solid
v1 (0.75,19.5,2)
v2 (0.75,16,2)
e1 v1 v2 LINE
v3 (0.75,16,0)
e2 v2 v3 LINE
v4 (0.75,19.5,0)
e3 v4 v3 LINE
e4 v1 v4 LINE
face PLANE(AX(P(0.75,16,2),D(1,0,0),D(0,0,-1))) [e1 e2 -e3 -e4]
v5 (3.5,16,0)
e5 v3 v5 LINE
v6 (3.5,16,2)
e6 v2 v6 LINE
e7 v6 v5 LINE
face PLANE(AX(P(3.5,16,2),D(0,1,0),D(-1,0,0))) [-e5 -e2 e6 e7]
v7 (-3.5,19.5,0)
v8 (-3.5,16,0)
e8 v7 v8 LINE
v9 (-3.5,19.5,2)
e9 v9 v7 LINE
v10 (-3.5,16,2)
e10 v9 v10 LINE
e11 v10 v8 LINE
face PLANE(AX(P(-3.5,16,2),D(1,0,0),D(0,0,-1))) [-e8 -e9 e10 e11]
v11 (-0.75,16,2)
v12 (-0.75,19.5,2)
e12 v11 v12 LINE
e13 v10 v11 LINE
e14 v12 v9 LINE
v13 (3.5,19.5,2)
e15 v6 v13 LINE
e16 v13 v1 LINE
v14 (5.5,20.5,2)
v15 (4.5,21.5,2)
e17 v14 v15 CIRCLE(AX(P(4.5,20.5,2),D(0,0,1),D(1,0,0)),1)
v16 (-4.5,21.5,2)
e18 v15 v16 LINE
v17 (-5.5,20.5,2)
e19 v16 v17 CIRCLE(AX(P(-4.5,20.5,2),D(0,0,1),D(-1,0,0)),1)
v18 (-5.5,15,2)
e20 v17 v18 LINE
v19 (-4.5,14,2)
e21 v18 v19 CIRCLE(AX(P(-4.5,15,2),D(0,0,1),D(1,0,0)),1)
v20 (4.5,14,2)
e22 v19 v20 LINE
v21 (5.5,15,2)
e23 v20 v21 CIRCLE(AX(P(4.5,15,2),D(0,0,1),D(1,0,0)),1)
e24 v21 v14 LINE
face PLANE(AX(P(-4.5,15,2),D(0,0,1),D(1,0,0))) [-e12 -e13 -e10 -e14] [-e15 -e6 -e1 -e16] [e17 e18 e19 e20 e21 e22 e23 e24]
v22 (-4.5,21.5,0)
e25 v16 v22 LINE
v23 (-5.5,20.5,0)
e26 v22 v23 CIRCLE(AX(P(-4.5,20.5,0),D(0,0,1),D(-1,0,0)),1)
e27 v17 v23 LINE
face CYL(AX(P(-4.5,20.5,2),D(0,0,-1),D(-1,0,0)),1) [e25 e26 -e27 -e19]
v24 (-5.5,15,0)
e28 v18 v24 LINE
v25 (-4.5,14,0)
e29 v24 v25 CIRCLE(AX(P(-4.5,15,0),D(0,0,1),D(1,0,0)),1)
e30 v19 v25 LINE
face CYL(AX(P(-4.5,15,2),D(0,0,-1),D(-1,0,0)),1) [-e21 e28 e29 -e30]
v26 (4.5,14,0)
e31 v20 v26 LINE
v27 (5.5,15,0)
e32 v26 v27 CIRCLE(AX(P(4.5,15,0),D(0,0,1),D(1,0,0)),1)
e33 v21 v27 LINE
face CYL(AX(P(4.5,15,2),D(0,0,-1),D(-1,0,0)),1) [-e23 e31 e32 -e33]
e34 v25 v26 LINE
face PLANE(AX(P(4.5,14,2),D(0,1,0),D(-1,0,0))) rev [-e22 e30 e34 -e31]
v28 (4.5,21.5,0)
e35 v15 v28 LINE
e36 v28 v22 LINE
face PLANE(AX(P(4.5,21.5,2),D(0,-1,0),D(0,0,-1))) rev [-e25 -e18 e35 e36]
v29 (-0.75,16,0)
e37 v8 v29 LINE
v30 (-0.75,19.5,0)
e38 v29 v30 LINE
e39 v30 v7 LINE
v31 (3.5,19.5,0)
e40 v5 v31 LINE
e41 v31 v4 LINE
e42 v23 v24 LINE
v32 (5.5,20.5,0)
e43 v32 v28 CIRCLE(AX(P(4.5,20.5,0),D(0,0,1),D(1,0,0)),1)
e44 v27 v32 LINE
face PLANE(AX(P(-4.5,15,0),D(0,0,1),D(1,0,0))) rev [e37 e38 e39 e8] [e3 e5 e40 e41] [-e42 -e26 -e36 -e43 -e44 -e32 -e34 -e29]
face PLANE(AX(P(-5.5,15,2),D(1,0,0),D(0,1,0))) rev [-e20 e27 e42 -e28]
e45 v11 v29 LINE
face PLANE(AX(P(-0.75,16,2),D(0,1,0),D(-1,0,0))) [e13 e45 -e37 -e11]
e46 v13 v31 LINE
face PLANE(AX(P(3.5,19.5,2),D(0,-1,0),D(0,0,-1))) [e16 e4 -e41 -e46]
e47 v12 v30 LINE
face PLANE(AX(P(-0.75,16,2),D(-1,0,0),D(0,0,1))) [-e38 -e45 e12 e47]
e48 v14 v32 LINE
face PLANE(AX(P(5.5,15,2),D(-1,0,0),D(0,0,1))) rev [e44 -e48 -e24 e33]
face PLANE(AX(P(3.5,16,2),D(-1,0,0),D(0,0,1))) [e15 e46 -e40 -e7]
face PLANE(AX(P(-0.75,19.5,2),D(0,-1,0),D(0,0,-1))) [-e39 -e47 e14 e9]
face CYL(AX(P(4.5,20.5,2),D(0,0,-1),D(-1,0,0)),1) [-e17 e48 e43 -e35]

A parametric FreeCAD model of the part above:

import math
import FreeCAD as App
import Part
import Sketcher
from FreeCAD import Vector
Q = App.Units.Quantity


def add_polygon(sketch, points):
    """Adds a closed chain of lines whose ends are joined by coincident constraints."""
    first, n = sketch.GeometryCount, len(points)
    for a, b in zip(points, points[1:] + points[:1]):
        sketch.addGeometry(Part.LineSegment(App.Vector(*a, 0), App.Vector(*b, 0)), False)
    for i in range(n):
        sketch.addConstraint(Sketcher.Constraint("Coincident", first + i, 2, first + (i + 1) % n, 1))

doc = App.newDocument("Part")
body = doc.addObject("PartDesign::Body", "Body")

sketch1 = doc.addObject("Sketcher::SketchObject", "Sketch")
body.addObject(sketch1)
sketch1.AttachmentSupport = (doc.XY_Plane, [""])
sketch1.MapMode = "FlatFace"
sketch1.addGeometry(Part.LineSegment(Vector(4.5, 21.5, 0), Vector(-4.5, 21.5, 0)), False)
sketch1.addGeometry(Part.ArcOfCircle(Part.Circle(Vector(-4.5, 20.5, 0), Vector(0, 0, 1), 1), math.radians(90), math.radians(180)), False)
sketch1.addGeometry(Part.LineSegment(Vector(-5.5, 20.5, 0), Vector(-5.5, 15, 0)), False)
sketch1.addGeometry(Part.ArcOfCircle(Part.Circle(Vector(-4.5, 15, 0), Vector(0, 0, 1), 1), math.radians(-180), math.radians(-90)), False)
sketch1.addGeometry(Part.LineSegment(Vector(-4.5, 14, 0), Vector(4.5, 14, 0)), False)
sketch1.addGeometry(Part.ArcOfCircle(Part.Circle(Vector(4.5, 15, 0), Vector(0, 0, 1), 1), math.radians(-90), math.radians(0)), False)
sketch1.addGeometry(Part.LineSegment(Vector(5.5, 15, 0), Vector(5.5, 20.5, 0)), False)
sketch1.addGeometry(Part.ArcOfCircle(Part.Circle(Vector(4.5, 20.5, 0), Vector(0, 0, 1), 1), math.radians(0), math.radians(90)), False)
add_polygon(sketch1, [(-0.8, 16), (-3.5, 16), (-3.5, 19.5), (-0.8, 19.5)])
add_polygon(sketch1, [(3.5, 16), (0.8, 16), (0.8, 19.5), (3.5, 19.5)])
sketch1.addConstraint([
    Sketcher.Constraint("Tangent", 0, 2, 1, 1),
    Sketcher.Constraint("Tangent", 1, 2, 2, 1),
    Sketcher.Constraint("Tangent", 2, 2, 3, 1),
    Sketcher.Constraint("Tangent", 3, 2, 4, 1),
    Sketcher.Constraint("Tangent", 4, 2, 5, 1),
    Sketcher.Constraint("Tangent", 5, 2, 6, 1),
    Sketcher.Constraint("Tangent", 6, 2, 7, 1),
    Sketcher.Constraint("Tangent", 7, 2, 0, 1),
    Sketcher.Constraint("Horizontal", 0),
    Sketcher.Constraint("Vertical", 2),
    Sketcher.Constraint("Horizontal", 4),
    Sketcher.Constraint("Vertical", 6),
    Sketcher.Constraint("Horizontal", 8),
    Sketcher.Constraint("Vertical", 9),
    Sketcher.Constraint("Horizontal", 10),
    Sketcher.Constraint("Vertical", 11),
    Sketcher.Constraint("Horizontal", 12),
    Sketcher.Constraint("Vertical", 13),
    Sketcher.Constraint("Horizontal", 14),
    Sketcher.Constraint("Vertical", 15),
    Sketcher.Constraint("Equal", 1, 3),
    Sketcher.Constraint("Equal", 3, 5),
    Sketcher.Constraint("Equal", 5, 7),
    Sketcher.Constraint("Symmetric", 11, 2, 12, 2, -2),
    Sketcher.Constraint("Symmetric", 9, 2, 14, 2, -2),
    Sketcher.Constraint("Radius", 1, Q("1 mm")),
    Sketcher.Constraint("DistanceX", 0, 2, 0, 1, Q("9 mm")),
    Sketcher.Constraint("DistanceY", 2, 2, 2, 1, Q("5.5 mm")),
    Sketcher.Constraint("DistanceY", 9, 1, 9, 2, Q("3.5 mm")),
    Sketcher.Constraint("DistanceY", -1, 1, 3, 3, Q("15 mm")),
    Sketcher.Constraint("DistanceY", -1, 1, 8, 2, Q("16 mm")),
    Sketcher.Constraint("DistanceX", 3, 3, 8, 2, Q("1 mm")),
    Sketcher.Constraint("DistanceX", 14, 2, 7, 3, Q("1 mm")),
    Sketcher.Constraint("DistanceX", 8, 2, 8, 1, Q("2.75 mm")),
])
pad1 = doc.addObject("PartDesign::Pad", "Pad")
body.addObject(pad1)
pad1.Profile = sketch1
pad1.Length = 2

doc.recompute()
